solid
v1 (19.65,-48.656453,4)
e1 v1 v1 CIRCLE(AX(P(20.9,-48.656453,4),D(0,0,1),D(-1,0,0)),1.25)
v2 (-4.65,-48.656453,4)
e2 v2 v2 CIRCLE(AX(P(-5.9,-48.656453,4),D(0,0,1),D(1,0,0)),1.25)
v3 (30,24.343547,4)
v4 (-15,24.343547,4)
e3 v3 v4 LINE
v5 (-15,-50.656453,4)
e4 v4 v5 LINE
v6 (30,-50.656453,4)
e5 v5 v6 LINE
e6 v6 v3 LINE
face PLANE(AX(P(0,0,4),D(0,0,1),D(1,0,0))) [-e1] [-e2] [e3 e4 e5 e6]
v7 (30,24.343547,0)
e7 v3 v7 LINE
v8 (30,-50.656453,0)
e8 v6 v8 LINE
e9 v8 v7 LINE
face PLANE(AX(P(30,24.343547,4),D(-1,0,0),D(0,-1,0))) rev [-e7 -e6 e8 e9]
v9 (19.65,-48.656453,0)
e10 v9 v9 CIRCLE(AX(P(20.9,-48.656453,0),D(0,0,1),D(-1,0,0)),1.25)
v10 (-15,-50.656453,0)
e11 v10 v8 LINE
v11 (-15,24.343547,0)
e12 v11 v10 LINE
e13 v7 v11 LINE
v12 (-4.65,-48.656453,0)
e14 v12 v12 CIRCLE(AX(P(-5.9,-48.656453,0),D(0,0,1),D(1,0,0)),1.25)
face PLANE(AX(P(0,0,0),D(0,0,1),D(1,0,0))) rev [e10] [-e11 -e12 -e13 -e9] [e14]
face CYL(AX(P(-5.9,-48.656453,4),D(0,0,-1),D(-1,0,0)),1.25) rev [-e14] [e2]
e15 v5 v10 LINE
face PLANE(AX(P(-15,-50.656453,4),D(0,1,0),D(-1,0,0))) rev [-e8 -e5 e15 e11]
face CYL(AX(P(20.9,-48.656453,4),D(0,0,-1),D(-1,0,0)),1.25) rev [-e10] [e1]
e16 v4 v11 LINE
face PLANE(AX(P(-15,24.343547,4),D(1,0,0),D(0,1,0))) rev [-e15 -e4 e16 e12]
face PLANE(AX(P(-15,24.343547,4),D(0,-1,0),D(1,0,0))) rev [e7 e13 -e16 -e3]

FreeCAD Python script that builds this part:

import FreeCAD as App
import Part
import Sketcher
from FreeCAD import Vector
Q = App.Units.Quantity

doc = App.newDocument("Part")
body = doc.addObject("PartDesign::Body", "Body")

# Sketch on XY plane
sketch1 = body.newObject("Sketcher::SketchObject", "Sketch")
sketch1.AttachmentSupport = (doc.getObject("XY_Plane"), [""])
sketch1.MapMode = "FlatFace"
sketch1.addGeometry(Part.LineSegment(Vector(-15, 24.3, 0), Vector(-15, -50.7, 0)), False)
sketch1.addGeometry(Part.LineSegment(Vector(-15, -50.7, 0), Vector(30, -50.7, 0)), False)
sketch1.addGeometry(Part.LineSegment(Vector(30, -50.7, 0), Vector(30, 24.3, 0)), False)
sketch1.addGeometry(Part.LineSegment(Vector(30, 24.3, 0), Vector(-15, 24.3, 0)), False)
sketch1.addGeometry(Part.Circle(Vector(-5.9, -48.7, 0), Vector(0, 0, 1), 1.2), False)
sketch1.addGeometry(Part.Circle(Vector(20.9, -48.7, 0), Vector(0, 0, 1), 1.2), False)
sketch1.addConstraint(Sketcher.Constraint("Coincident", 0, 2, 1, 1))
sketch1.addConstraint(Sketcher.Constraint("Coincident", 1, 2, 2, 1))
sketch1.addConstraint(Sketcher.Constraint("Coincident", 2, 2, 3, 1))
sketch1.addConstraint(Sketcher.Constraint("Coincident", 3, 2, 0, 1))
sketch1.addConstraint(Sketcher.Constraint("Vertical", 0))
sketch1.addConstraint(Sketcher.Constraint("Horizontal", 1))
sketch1.addConstraint(Sketcher.Constraint("Vertical", 2))
sketch1.addConstraint(Sketcher.Constraint("Horizontal", 3))
sketch1.addConstraint(Sketcher.Constraint("Equal", 4, 5))
sketch1.addConstraint(Sketcher.Constraint("Horizontal", 4, 3, 5, 3))
sketch1.addConstraint(Sketcher.Constraint("Diameter", 4, Q("2.5 mm")))
sketch1.addConstraint(Sketcher.Constraint("DistanceX", 1, 1, 1, 2, Q("45 mm")))
sketch1.addConstraint(Sketcher.Constraint("DistanceY", 0, 2, 0, 1, Q("75 mm")))
sketch1.addConstraint(Sketcher.Constraint("DistanceX", 0, 2, -1, 1, Q("15 mm")))
sketch1.addConstraint(Sketcher.Constraint("DistanceY", 0, 2, 4, 3, Q("2 mm")))
sketch1.addConstraint(Sketcher.Constraint("DistanceX", 4, 3, -1, 1, Q("5.9 mm")))
sketch1.addConstraint(Sketcher.Constraint("DistanceX", -1, 1, 5, 3, Q("20.9 mm")))
sketch1.addConstraint(Sketcher.Constraint("DistanceY", 4, 3, -1, 1, Q("48.656453 mm")))
pad1 = body.newObject("PartDesign::Pad", "Pad")
pad1.Profile = sketch1
pad1.Length = 4

doc.recompute()
